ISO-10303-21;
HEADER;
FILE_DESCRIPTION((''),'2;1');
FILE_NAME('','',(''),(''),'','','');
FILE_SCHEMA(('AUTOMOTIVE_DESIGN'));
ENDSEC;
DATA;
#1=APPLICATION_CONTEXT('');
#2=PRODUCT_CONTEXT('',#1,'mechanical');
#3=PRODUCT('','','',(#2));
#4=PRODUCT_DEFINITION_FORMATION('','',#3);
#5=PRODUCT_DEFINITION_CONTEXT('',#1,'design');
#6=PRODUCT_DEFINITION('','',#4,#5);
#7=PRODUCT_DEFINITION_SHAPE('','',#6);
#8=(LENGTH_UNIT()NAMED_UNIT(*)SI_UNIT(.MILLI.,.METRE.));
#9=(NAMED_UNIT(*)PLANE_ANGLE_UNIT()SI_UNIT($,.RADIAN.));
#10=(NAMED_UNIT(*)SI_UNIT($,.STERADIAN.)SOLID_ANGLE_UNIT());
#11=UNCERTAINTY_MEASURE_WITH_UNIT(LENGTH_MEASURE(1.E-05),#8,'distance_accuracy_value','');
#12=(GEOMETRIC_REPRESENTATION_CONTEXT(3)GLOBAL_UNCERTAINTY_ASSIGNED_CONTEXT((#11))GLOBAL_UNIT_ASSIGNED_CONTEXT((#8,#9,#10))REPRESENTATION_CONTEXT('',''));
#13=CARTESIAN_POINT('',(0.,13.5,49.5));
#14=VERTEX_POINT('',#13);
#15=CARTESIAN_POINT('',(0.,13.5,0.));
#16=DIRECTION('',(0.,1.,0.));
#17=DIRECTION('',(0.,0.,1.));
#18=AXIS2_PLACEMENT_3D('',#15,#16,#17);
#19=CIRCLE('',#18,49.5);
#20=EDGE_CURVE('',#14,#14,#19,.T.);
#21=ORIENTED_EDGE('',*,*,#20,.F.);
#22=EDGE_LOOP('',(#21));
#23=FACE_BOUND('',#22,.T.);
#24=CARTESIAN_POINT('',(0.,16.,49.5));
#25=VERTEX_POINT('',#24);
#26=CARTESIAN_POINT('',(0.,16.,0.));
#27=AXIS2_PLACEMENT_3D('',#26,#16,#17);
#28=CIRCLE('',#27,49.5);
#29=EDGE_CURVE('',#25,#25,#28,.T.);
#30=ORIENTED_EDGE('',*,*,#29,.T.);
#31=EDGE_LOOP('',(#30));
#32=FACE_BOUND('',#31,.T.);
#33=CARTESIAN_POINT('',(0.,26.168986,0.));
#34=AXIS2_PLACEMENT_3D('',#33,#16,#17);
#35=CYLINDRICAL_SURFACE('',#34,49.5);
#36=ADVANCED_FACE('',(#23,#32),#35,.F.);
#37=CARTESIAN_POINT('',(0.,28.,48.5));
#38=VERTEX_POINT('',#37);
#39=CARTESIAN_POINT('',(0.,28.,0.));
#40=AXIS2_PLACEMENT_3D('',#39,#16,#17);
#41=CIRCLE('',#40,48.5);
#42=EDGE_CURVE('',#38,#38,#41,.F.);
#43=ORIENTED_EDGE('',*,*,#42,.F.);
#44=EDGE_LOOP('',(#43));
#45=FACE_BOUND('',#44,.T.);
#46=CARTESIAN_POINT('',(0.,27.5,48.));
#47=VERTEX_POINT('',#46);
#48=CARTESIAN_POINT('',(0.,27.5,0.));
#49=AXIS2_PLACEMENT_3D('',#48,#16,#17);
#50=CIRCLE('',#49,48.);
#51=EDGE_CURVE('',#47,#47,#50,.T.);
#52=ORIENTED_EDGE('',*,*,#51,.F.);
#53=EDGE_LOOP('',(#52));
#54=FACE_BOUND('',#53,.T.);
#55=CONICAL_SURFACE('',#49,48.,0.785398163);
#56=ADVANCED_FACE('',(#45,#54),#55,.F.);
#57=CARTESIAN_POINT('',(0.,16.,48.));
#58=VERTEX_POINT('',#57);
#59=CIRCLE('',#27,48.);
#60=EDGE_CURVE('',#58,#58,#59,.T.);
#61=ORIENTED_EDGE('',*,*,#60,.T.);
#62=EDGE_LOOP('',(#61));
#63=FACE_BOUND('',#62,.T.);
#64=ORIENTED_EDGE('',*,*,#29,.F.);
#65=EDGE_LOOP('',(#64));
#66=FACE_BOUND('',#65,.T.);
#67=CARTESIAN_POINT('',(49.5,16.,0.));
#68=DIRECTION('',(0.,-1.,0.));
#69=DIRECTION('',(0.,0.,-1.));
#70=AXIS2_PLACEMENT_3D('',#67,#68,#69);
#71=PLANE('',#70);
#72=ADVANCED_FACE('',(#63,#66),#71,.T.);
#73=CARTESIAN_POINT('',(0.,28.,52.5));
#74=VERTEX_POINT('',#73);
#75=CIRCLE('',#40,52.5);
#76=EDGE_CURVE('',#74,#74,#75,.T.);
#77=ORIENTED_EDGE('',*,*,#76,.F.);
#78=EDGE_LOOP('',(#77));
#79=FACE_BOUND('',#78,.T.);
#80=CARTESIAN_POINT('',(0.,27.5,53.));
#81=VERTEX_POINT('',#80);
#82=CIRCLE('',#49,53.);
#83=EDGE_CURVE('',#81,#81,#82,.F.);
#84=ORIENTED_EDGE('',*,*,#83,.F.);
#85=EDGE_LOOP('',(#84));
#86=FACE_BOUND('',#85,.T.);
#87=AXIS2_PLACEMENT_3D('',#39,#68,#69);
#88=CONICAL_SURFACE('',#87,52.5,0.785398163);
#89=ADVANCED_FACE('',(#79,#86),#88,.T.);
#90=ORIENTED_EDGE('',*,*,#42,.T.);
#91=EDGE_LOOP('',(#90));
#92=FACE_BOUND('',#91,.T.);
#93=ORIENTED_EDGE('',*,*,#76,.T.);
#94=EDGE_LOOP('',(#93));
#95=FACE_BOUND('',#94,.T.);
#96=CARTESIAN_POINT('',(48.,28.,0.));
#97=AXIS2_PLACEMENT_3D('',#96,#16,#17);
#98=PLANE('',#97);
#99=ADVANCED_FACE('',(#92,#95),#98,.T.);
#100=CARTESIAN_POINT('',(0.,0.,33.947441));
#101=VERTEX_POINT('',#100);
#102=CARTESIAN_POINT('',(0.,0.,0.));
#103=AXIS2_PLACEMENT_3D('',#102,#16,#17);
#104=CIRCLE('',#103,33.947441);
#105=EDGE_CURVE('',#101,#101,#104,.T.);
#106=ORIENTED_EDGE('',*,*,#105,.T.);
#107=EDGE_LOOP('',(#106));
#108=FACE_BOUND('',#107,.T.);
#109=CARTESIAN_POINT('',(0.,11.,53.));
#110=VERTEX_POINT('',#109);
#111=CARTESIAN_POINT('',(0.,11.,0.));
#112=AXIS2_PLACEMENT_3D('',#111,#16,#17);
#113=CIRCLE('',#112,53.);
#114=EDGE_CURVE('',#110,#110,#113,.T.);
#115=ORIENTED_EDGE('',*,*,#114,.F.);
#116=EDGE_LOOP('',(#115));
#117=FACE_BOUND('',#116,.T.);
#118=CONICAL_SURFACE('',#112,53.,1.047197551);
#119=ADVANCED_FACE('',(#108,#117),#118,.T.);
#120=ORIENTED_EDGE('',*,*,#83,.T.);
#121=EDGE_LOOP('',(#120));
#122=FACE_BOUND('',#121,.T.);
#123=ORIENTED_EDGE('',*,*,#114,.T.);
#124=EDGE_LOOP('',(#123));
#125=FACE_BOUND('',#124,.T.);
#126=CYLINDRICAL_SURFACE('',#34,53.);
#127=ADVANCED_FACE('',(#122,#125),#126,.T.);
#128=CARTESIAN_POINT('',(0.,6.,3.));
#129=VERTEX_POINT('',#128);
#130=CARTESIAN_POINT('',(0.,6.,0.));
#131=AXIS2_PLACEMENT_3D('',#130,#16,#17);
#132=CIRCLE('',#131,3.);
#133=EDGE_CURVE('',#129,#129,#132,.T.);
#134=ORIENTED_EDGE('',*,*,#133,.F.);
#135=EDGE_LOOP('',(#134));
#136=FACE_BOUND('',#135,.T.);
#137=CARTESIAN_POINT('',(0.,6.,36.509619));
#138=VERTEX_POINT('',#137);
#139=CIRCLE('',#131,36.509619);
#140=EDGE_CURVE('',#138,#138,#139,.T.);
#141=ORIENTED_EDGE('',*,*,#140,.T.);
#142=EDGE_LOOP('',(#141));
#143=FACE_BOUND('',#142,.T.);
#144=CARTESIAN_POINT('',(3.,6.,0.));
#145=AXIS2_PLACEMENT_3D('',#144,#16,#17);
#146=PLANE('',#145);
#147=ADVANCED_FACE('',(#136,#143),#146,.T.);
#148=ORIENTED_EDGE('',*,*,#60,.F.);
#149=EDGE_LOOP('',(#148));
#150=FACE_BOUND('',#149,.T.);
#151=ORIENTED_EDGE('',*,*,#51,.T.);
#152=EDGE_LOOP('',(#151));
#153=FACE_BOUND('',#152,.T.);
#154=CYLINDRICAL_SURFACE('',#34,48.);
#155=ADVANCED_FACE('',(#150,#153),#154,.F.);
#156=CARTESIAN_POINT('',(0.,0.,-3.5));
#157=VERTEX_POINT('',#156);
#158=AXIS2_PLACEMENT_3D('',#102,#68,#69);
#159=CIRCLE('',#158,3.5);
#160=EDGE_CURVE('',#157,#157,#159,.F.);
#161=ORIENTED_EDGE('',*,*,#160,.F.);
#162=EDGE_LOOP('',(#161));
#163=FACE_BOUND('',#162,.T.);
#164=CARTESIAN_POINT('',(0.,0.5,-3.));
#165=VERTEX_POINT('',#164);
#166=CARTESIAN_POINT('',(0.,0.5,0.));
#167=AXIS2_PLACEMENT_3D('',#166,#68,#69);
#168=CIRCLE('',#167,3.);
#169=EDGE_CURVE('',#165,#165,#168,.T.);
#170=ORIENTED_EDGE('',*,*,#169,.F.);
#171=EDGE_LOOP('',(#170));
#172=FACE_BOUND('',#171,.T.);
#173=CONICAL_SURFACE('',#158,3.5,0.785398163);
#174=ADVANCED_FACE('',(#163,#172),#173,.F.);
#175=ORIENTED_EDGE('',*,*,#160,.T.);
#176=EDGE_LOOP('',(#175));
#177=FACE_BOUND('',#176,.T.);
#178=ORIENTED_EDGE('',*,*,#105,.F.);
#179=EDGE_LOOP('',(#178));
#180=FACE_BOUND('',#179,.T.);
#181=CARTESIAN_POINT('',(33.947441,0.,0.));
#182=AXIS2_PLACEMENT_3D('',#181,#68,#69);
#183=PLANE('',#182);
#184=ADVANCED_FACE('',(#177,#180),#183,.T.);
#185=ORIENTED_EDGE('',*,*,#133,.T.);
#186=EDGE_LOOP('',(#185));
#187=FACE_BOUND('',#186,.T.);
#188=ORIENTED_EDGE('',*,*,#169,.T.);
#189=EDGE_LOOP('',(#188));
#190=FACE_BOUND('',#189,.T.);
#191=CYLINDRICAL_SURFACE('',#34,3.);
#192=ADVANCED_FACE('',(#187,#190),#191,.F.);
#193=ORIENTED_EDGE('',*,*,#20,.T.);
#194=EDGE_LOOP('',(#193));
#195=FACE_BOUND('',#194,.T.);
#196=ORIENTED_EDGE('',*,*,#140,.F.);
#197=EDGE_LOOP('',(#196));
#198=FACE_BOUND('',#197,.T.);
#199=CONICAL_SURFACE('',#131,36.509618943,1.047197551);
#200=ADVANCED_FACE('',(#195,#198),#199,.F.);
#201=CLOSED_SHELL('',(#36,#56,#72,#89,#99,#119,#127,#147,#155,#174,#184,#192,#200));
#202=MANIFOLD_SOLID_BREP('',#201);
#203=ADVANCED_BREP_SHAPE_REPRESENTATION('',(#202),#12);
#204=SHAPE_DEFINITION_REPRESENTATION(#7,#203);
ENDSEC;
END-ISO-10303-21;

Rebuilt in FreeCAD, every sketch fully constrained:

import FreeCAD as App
import Part
import Sketcher
from FreeCAD import Vector
Q = App.Units.Quantity


def edges_at(feature, points):
    """Names of the edges that pass closest to the given points."""
    edges = feature.Shape.Edges
    near = lambda p: min(range(len(edges)), key=lambda i: edges[i].distToShape(Part.Vertex(*p))[0])
    return sorted({f"Edge{near(p) + 1}" for p in points})


def add_polygon(sketch, points):
    """Adds a closed chain of lines whose ends are joined by coincident constraints."""
    first, n = sketch.GeometryCount, len(points)
    for a, b in zip(points, points[1:] + points[:1]):
        sketch.addGeometry(Part.LineSegment(App.Vector(*a, 0), App.Vector(*b, 0)), False)
    for i in range(n):
        sketch.addConstraint(Sketcher.Constraint("Coincident", first + i, 2, first + (i + 1) % n, 1))

doc = App.newDocument("Part")
body = doc.addObject("PartDesign::Body", "Body")

# Sketch on XY plane
sketch1 = doc.addObject("Sketcher::SketchObject", "Sketch")
body.addObject(sketch1)
sketch1.AttachmentSupport = (doc.XY_Plane, [""])
sketch1.MapMode = "FlatFace"
add_polygon(sketch1, [(-53, 28), (-53, 11), (-33.9, 0), (-3, 0), (-3, 6), (-36.5, 6), (-49.5, 13.5), (-49.5, 16), (-48, 16), (-48, 28)])  # lines 0-9
sketch1.addConstraint([
    Sketcher.Constraint("Vertical", 0),
    Sketcher.Constraint("Horizontal", 2),
    Sketcher.Constraint("Vertical", 3),
    Sketcher.Constraint("Horizontal", 4),
    Sketcher.Constraint("Vertical", 6),
    Sketcher.Constraint("Horizontal", 7),
    Sketcher.Constraint("Vertical", 8),
    Sketcher.Constraint("Horizontal", 9),
    Sketcher.Constraint("PointOnObject", 1, 2, -1),
    Sketcher.Constraint("Parallel", 1, 5),
    Sketcher.Constraint("DistanceX", 9, 2, 9, 1, 5.0),
    Sketcher.Constraint("DistanceY", 0, 2, 0, 1, 17.0),
    Sketcher.Constraint("DistanceY", 3, 1, 3, 2, 6.0),
    Sketcher.Constraint("DistanceY", 8, 1, 8, 2, 12.0),
    Sketcher.Constraint("Angle", 1, Q("-30 deg")),
    Sketcher.Constraint("Distance", 1, 22.0),
    Sketcher.Constraint("Distance", 5, 15.0),
    Sketcher.Constraint("DistanceX", 7, 1, 7, 2, 1.5),
    Sketcher.Constraint("DistanceX", 0, 2, -1, 1, 53.0),
    Sketcher.Constraint("DistanceX", 2, 2, -1, 1, 3.0),
])
revolution = doc.addObject("PartDesign::Revolution", "Revolution")
body.addObject(revolution)
revolution.Profile = sketch1
revolution.ReferenceAxis = (sketch1, ["V_Axis"])
revolution.Angle = 360
doc.recompute()

chamfer = doc.addObject("PartDesign::Chamfer", "Chamfer")
body.addObject(chamfer)
chamfer.Base = (revolution, edges_at(revolution, [(0, 0, -3), (0, 28, -53), (0, 28, -48)]))
chamfer.Size = 0.5

doc.recompute()
